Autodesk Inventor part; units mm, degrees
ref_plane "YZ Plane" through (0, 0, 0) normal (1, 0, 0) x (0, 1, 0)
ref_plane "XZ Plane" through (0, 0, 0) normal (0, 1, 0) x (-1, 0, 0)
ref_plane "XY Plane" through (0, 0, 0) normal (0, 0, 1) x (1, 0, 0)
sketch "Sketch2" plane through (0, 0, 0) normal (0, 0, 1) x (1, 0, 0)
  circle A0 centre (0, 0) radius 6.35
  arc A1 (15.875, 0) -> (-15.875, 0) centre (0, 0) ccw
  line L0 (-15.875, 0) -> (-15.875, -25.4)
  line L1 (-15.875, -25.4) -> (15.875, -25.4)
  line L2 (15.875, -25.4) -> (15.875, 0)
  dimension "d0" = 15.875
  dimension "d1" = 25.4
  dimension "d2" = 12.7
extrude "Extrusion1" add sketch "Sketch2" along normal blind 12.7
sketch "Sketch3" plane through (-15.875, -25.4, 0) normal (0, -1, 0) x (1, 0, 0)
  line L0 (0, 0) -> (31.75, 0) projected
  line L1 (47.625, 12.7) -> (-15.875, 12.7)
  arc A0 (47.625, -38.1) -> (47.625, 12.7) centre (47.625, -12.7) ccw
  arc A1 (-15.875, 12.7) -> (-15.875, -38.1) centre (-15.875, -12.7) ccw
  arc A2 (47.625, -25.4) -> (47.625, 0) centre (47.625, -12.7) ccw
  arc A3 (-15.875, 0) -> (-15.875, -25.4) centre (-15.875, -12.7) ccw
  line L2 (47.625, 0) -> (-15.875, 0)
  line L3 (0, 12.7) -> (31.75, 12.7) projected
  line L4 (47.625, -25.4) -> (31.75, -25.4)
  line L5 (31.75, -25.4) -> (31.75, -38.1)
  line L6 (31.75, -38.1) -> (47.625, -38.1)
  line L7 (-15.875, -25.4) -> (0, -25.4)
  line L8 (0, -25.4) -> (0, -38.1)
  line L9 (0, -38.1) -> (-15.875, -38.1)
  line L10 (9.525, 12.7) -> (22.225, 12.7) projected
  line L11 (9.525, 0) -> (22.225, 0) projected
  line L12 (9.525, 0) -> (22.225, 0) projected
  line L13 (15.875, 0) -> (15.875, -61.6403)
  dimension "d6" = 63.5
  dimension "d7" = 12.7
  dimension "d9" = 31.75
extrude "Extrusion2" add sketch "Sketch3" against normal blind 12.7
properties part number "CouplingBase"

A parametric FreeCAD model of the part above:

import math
import FreeCAD as App
import Part
import Sketcher
Q = App.Units.Quantity

doc = App.newDocument("Part")
body = doc.addObject("PartDesign::Body", "Body")

# Sketch on XY plane
sketch1 = body.newObject("Sketcher::SketchObject", "Sketch")
sketch1.AttachmentSupport = (doc.getObject("XY_Plane"), [""])
sketch1.MapMode = "FlatFace"
sketch1.addGeometry([
    Part.LineSegment(App.Vector(16, -25, 0), App.Vector(16, 0, 0)),  # 0
    Part.ArcOfCircle(Part.Circle(App.Vector(0, 0, 0), App.Vector(0, 0, 1), 16), math.radians(0), math.radians(180)),  # 1
    Part.LineSegment(App.Vector(-16, 0, 0), App.Vector(-16, -25, 0)),  # 2
    Part.LineSegment(App.Vector(-16, -25, 0), App.Vector(16, -25, 0)),  # 3
    Part.Circle(App.Vector(0, 0, 0), App.Vector(0, 0, 1), 6),  # 4
], False)
sketch1.addConstraint([
    Sketcher.Constraint("Tangent", 0, 2, 1, 1),
    Sketcher.Constraint("Tangent", 1, 2, 2, 1),
    Sketcher.Constraint("Coincident", 2, 2, 3, 1),
    Sketcher.Constraint("Coincident", 3, 2, 0, 1),
    Sketcher.Constraint("Vertical", 0),
    Sketcher.Constraint("Vertical", 2),
    Sketcher.Constraint("Horizontal", 3),
    Sketcher.Constraint("Coincident", 1, 3, -1, 1),
    Sketcher.Constraint("Coincident", 4, 3, -1, 1),
    Sketcher.Constraint("Diameter", 4, Q("0.5 in")),
    Sketcher.Constraint("DistanceY", 0, 1, 0, 2, Q("1 in")),
    Sketcher.Constraint("Radius", 1, Q("0.625 in")),
])
pad1 = body.newObject("PartDesign::Pad", "Pad")
pad1.Profile = sketch1
pad1.Length = Q("0.5 in")

# Sketch on XZ plane
sketch2 = body.newObject("Sketcher::SketchObject", "Sketch001")
sketch2.AttachmentSupport = (doc.getObject("XZ_Plane"), [""])
sketch2.MapMode = "FlatFace"
sketch2.AttachmentOffset = App.Placement(App.Vector(0, 0, 1 * 25.4), App.Rotation())
sketch2.addGeometry([
    Part.LineSegment(App.Vector(-32, 0, 0), App.Vector(32, 0, 0)),  # 0
    Part.ArcOfCircle(Part.Circle(App.Vector(32, -13, 0), App.Vector(0, 0, 1), 13), math.radians(-90), math.radians(90)),  # 1
    Part.LineSegment(App.Vector(32, -25, 0), App.Vector(16, -25, 0)),  # 2
    Part.LineSegment(App.Vector(16, -25, 0), App.Vector(16, -38, 0)),  # 3
    Part.LineSegment(App.Vector(16, -38, 0), App.Vector(32, -38, 0)),  # 4
    Part.ArcOfCircle(Part.Circle(App.Vector(32, -13, 0), App.Vector(0, 0, 1), 25), math.radians(-90), math.radians(90)),  # 5
    Part.LineSegment(App.Vector(32, 13, 0), App.Vector(-32, 13, 0)),  # 6
    Part.ArcOfCircle(Part.Circle(App.Vector(-32, -13, 0), App.Vector(0, 0, 1), 25), math.radians(90), math.radians(270)),  # 7
    Part.LineSegment(App.Vector(-32, -38, 0), App.Vector(-16, -38, 0)),  # 8
    Part.LineSegment(App.Vector(-16, -38, 0), App.Vector(-16, -25, 0)),  # 9
    Part.LineSegment(App.Vector(-16, -25, 0), App.Vector(-32, -25, 0)),  # 10
    Part.ArcOfCircle(Part.Circle(App.Vector(-32, -13, 0), App.Vector(0, 0, 1), 13), math.radians(90), math.radians(270)),  # 11
], False)
sketch2.addConstraint([
    Sketcher.Constraint("Tangent", 0, 2, 1, 2),
    Sketcher.Constraint("Tangent", 1, 1, 2, 1),
    Sketcher.Constraint("Coincident", 2, 2, 3, 1),
    Sketcher.Constraint("Coincident", 3, 2, 4, 1),
    Sketcher.Constraint("Tangent", 4, 2, 5, 1),
    Sketcher.Constraint("Tangent", 5, 2, 6, 1),
    Sketcher.Constraint("Tangent", 6, 2, 7, 1),
    Sketcher.Constraint("Tangent", 7, 2, 8, 1),
    Sketcher.Constraint("Coincident", 8, 2, 9, 1),
    Sketcher.Constraint("Coincident", 9, 2, 10, 1),
    Sketcher.Constraint("Tangent", 10, 2, 11, 2),
    Sketcher.Constraint("Tangent", 11, 1, 0, 1),
    Sketcher.Constraint("Horizontal", 0),
    Sketcher.Constraint("Horizontal", 2),
    Sketcher.Constraint("Vertical", 3),
    Sketcher.Constraint("Horizontal", 4),
    Sketcher.Constraint("Horizontal", 6),
    Sketcher.Constraint("Horizontal", 8),
    Sketcher.Constraint("Vertical", 9),
    Sketcher.Constraint("Horizontal", 10),
    Sketcher.Constraint("Coincident", 5, 3, 1, 3),
    Sketcher.Constraint("Coincident", 11, 3, 7, 3),
    Sketcher.Constraint("Equal", 5, 7),
    Sketcher.Constraint("Symmetric", 0, 2, 11, 1, -1, 1),
    Sketcher.Constraint("Equal", 4, 8),
    Sketcher.Constraint("Radius", 1, Q("0.5 in")),
    Sketcher.Constraint("DistanceX", 0, 1, 0, 2, Q("2.5 in")),
    Sketcher.Constraint("DistanceY", 3, 2, 3, 1, Q("0.5 in")),
    Sketcher.Constraint("DistanceX", 8, 2, 3, 2, Q("1.25 in")),
])
pad2 = body.newObject("PartDesign::Pad", "Pad001")
pad2.Profile = sketch2
pad2.Length = Q("0.5 in")
pad2.Reversed = True

doc.recompute()
